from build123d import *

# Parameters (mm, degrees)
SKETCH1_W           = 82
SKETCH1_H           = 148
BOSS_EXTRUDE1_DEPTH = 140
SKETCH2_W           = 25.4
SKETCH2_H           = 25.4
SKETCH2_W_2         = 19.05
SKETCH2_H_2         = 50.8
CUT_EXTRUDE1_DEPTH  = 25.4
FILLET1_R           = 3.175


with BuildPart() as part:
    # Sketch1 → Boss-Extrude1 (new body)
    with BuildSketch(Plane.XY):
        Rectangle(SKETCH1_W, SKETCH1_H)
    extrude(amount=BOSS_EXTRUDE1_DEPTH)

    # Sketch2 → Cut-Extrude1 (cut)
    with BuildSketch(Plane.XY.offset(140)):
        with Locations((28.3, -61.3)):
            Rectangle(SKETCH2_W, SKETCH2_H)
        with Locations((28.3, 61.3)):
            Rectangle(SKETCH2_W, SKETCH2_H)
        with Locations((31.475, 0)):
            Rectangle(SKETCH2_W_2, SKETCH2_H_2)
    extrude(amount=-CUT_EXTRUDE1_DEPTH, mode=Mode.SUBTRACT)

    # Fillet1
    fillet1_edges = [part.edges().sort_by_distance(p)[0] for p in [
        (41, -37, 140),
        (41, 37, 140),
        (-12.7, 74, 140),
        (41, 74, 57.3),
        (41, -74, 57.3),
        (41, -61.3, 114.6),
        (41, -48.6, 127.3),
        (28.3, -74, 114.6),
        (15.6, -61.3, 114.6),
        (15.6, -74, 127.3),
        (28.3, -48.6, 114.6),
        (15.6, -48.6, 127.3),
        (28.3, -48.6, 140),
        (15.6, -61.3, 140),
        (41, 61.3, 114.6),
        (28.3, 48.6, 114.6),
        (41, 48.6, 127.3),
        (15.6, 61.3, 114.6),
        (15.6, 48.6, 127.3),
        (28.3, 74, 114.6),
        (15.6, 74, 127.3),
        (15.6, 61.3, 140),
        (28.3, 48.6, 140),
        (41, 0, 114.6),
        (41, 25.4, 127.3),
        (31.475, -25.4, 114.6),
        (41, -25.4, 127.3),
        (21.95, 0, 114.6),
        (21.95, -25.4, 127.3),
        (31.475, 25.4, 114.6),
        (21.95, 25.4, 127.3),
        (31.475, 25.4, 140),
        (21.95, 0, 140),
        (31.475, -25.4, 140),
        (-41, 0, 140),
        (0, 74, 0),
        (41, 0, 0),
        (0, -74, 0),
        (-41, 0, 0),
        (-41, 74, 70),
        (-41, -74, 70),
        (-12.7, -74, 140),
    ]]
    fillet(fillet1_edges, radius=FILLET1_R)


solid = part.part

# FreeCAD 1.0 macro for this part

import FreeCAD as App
import Part
import Sketcher
Q = App.Units.Quantity

doc = App.newDocument("Part")
body = doc.addObject("PartDesign::Body", "Body")

# Sketch on XY plane
sketch1 = body.newObject("Sketcher::SketchObject", "Sketch")
sketch1.AttachmentSupport = (doc.getObject("XY_Plane"), [""])
sketch1.MapMode = "FlatFace"
sketch1.addGeometry([
    Part.LineSegment(App.Vector(-41, 74, 0), App.Vector(-41, -74, 0)),
    Part.LineSegment(App.Vector(-41, -74, 0), App.Vector(41, -74, 0)),
    Part.LineSegment(App.Vector(41, -74, 0), App.Vector(41, 74, 0)),
    Part.LineSegment(App.Vector(41, 74, 0), App.Vector(-41, 74, 0)),
], False)
sketch1.addConstraint([
    Sketcher.Constraint("Coincident", 0, 2, 1, 1),
    Sketcher.Constraint("Coincident", 1, 2, 2, 1),
    Sketcher.Constraint("Coincident", 2, 2, 3, 1),
    Sketcher.Constraint("Coincident", 3, 2, 0, 1),
    Sketcher.Constraint("Vertical", 0),
    Sketcher.Constraint("Horizontal", 1),
    Sketcher.Constraint("Vertical", 2),
    Sketcher.Constraint("Horizontal", 3),
    Sketcher.Constraint("Symmetric", 0, 2, 2, 2, -1, 1),
    Sketcher.Constraint("DistanceX", 1, 1, 1, 2, 82.0),
    Sketcher.Constraint("DistanceY", 0, 2, 0, 1, 148.0),
])
pad1 = body.newObject("PartDesign::Pad", "Pad")
pad1.Profile = sketch1
pad1.Length = 140

# Sketch on XY plane
sketch2 = body.newObject("Sketcher::SketchObject", "Sketch001")
sketch2.AttachmentSupport = (doc.getObject("XY_Plane"), [""])
sketch2.MapMode = "FlatFace"
sketch2.AttachmentOffset = App.Placement(App.Vector(0, 0, 140), App.Rotation())
sketch2.addGeometry([
    Part.LineSegment(App.Vector(16, -49, 0), App.Vector(16, -74, 0)),  # 0
    Part.LineSegment(App.Vector(16, -74, 0), App.Vector(41, -74, 0)),  # 1
    Part.LineSegment(App.Vector(41, -74, 0), App.Vector(41, -49, 0)),  # 2
    Part.LineSegment(App.Vector(41, -49, 0), App.Vector(16, -49, 0)),  # 3
    Part.LineSegment(App.Vector(16, 74, 0), App.Vector(16, 49, 0)),  # 4
    Part.LineSegment(App.Vector(16, 49, 0), App.Vector(41, 49, 0)),  # 5
    Part.LineSegment(App.Vector(41, 49, 0), App.Vector(41, 74, 0)),  # 6
    Part.LineSegment(App.Vector(41, 74, 0), App.Vector(16, 74, 0)),  # 7
    Part.LineSegment(App.Vector(22, 25, 0), App.Vector(22, -25, 0)),  # 8
    Part.LineSegment(App.Vector(22, -25, 0), App.Vector(41, -25, 0)),  # 9
    Part.LineSegment(App.Vector(41, -25, 0), App.Vector(41, 25, 0)),  # 10
    Part.LineSegment(App.Vector(41, 25, 0), App.Vector(22, 25, 0)),  # 11
], False)
sketch2.addConstraint([
    Sketcher.Constraint("Coincident", 0, 2, 1, 1),
    Sketcher.Constraint("Coincident", 1, 2, 2, 1),
    Sketcher.Constraint("Coincident", 2, 2, 3, 1),
    Sketcher.Constraint("Coincident", 3, 2, 0, 1),
    Sketcher.Constraint("Coincident", 4, 2, 5, 1),
    Sketcher.Constraint("Coincident", 5, 2, 6, 1),
    Sketcher.Constraint("Coincident", 6, 2, 7, 1),
    Sketcher.Constraint("Coincident", 7, 2, 4, 1),
    Sketcher.Constraint("Coincident", 8, 2, 9, 1),
    Sketcher.Constraint("Coincident", 9, 2, 10, 1),
    Sketcher.Constraint("Coincident", 10, 2, 11, 1),
    Sketcher.Constraint("Coincident", 11, 2, 8, 1),
    Sketcher.Constraint("Vertical", 0),
    Sketcher.Constraint("Horizontal", 1),
    Sketcher.Constraint("Vertical", 2),
    Sketcher.Constraint("Horizontal", 3),
    Sketcher.Constraint("Vertical", 4),
    Sketcher.Constraint("Horizontal", 5),
    Sketcher.Constraint("Vertical", 6),
    Sketcher.Constraint("Horizontal", 7),
    Sketcher.Constraint("Vertical", 8),
    Sketcher.Constraint("Horizontal", 9),
    Sketcher.Constraint("Vertical", 10),
    Sketcher.Constraint("Horizontal", 11),
    Sketcher.Constraint("Symmetric", 3, 2, 4, 2, -1),
    Sketcher.Constraint("Symmetric", 1, 2, 6, 2, -1),
    Sketcher.Constraint("Vertical", 6, 2, 9, 2),
    Sketcher.Constraint("Equal", 7, 0),
    Sketcher.Constraint("DistanceX", 1, 1, 1, 2, Q("1 in")),
    Sketcher.Constraint("DistanceY", 8, 2, 8, 1, Q("2 in")),
    Sketcher.Constraint("DistanceY", 8, 2, -1, 1, Q("1 in")),
    Sketcher.Constraint("DistanceX", 9, 1, 9, 2, Q("0.75 in")),
    Sketcher.Constraint("DistanceX", -1, 1, 0, 2, 15.6),
    Sketcher.Constraint("DistanceY", 0, 2, -1, 1, 74.0),
])
pocket1 = body.newObject("PartDesign::Pocket", "Pocket")
pocket1.Profile = sketch2
pocket1.Length = Q("1 in")
doc.recompute()

fillet = body.newObject("PartDesign::Fillet", "Fillet")
fillet.Base = (pocket1, ["Edge1"])
fillet.UseAllEdges = True
fillet.Radius = Q("0.125 in")

doc.recompute()
